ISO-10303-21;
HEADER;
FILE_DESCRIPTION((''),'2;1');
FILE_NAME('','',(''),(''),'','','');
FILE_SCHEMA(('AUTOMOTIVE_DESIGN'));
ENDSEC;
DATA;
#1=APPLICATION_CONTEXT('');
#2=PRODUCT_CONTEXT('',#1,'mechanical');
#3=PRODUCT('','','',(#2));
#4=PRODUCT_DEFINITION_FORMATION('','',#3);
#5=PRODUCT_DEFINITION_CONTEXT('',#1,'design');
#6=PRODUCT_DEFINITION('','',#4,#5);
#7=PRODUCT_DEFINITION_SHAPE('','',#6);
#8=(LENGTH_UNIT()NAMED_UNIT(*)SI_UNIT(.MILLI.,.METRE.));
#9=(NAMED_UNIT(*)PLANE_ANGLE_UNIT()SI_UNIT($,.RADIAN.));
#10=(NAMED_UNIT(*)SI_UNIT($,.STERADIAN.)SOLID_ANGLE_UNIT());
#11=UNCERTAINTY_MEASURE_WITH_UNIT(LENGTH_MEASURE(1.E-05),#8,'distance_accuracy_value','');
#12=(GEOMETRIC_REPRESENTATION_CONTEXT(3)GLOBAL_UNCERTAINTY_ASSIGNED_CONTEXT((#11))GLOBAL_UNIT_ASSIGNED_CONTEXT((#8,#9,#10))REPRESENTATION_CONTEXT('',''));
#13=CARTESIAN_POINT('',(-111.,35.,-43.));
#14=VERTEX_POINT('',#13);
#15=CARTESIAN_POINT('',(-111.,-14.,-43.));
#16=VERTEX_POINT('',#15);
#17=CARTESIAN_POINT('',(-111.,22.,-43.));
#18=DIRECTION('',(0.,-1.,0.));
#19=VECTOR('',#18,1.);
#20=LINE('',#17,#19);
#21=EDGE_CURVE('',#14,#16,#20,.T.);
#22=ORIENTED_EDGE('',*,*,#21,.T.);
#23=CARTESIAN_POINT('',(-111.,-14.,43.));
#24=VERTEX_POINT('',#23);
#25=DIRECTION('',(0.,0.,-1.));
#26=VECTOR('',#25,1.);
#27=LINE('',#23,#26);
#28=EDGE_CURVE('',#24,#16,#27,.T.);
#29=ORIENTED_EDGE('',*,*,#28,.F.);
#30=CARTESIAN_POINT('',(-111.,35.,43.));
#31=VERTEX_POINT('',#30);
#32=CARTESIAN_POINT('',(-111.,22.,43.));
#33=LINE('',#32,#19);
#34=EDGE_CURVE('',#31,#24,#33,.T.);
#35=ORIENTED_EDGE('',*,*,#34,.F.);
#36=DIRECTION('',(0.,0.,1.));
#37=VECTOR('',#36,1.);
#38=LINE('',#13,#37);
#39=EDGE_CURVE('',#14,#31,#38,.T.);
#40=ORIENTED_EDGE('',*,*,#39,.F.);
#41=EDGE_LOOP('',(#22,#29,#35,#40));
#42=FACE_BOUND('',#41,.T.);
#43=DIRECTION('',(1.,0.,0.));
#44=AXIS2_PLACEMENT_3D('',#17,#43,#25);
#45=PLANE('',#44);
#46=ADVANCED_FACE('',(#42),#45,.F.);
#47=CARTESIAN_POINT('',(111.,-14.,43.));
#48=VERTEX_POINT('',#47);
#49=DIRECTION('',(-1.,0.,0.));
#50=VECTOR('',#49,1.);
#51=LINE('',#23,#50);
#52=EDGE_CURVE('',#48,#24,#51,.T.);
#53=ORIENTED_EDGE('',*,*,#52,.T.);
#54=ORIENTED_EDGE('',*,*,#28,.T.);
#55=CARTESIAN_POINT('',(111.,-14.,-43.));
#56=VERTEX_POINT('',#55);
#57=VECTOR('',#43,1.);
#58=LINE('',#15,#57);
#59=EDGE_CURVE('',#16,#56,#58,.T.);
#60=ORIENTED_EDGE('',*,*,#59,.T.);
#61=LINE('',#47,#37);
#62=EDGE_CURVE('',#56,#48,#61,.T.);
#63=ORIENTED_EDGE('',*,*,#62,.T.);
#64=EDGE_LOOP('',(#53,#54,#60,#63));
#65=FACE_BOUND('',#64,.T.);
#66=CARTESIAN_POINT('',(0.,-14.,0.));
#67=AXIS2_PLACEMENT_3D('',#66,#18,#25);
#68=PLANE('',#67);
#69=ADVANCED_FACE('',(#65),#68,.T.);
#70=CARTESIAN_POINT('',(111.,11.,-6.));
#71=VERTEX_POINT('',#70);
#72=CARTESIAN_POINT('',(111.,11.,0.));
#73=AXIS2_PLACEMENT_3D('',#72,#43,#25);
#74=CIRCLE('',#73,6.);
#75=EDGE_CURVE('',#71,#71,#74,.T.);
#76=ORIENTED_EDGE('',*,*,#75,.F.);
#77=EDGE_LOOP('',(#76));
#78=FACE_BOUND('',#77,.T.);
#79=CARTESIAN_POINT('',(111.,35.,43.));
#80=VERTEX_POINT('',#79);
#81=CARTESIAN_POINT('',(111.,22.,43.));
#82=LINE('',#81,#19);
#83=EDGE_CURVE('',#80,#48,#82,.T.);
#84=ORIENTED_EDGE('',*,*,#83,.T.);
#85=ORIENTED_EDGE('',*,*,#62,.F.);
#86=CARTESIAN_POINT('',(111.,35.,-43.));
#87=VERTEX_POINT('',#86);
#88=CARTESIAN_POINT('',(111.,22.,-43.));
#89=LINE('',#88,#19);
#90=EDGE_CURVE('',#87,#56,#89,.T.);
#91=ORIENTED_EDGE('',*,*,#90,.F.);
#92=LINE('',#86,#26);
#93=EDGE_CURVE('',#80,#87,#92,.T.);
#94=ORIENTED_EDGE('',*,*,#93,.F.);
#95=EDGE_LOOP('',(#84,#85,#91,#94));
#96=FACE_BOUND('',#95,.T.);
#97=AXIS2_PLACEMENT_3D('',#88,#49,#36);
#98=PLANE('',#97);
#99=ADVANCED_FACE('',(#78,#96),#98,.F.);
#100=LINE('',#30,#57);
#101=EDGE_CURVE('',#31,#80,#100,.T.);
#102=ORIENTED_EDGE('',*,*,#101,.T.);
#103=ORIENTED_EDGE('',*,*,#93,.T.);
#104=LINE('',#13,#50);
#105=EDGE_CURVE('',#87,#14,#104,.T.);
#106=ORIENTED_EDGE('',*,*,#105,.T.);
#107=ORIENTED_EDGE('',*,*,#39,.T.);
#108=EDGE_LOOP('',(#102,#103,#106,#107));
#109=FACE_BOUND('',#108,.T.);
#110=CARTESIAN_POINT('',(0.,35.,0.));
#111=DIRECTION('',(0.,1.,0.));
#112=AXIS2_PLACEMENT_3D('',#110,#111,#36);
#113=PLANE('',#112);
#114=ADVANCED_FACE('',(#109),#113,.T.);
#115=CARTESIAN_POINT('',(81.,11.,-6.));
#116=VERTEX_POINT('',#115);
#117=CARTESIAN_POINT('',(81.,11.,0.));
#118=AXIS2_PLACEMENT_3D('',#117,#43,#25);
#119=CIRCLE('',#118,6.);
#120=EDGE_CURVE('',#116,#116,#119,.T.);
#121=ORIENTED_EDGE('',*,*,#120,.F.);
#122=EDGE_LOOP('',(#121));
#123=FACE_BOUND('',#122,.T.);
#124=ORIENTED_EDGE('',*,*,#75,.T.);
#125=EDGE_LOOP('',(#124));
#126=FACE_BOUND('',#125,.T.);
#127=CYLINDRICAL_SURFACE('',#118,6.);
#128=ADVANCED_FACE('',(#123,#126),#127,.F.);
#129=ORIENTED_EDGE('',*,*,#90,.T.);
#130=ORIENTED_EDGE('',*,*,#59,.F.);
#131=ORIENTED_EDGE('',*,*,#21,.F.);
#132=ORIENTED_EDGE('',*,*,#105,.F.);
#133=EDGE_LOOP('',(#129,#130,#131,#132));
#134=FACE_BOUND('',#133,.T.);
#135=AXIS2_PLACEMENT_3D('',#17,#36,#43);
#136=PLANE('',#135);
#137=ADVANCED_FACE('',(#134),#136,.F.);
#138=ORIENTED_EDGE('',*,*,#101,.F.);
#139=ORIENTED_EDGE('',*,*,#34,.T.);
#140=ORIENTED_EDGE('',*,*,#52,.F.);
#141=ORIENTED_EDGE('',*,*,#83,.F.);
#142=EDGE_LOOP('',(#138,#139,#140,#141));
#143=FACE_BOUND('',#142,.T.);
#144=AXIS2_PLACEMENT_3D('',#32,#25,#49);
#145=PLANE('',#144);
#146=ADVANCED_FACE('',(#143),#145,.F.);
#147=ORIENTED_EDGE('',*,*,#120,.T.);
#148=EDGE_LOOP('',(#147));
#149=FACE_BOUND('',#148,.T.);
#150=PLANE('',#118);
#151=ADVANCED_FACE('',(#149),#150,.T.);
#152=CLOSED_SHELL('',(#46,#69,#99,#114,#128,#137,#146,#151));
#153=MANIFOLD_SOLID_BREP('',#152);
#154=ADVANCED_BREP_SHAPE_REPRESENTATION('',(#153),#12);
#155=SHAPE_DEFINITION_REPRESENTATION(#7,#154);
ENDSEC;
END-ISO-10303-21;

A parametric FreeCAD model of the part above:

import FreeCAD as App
import Part
import Sketcher


def add_polygon(sketch, points):
    """Adds a closed chain of lines whose ends are joined by coincident constraints."""
    first, n = sketch.GeometryCount, len(points)
    for a, b in zip(points, points[1:] + points[:1]):
        sketch.addGeometry(Part.LineSegment(App.Vector(*a, 0), App.Vector(*b, 0)), False)
    for i in range(n):
        sketch.addConstraint(Sketcher.Constraint("Coincident", first + i, 2, first + (i + 1) % n, 1))

doc = App.newDocument("Part")
body = doc.addObject("PartDesign::Body", "Body")

# Sketch on XZ plane
sketch1 = doc.addObject("Sketcher::SketchObject", "Sketch")
body.addObject(sketch1)
sketch1.AttachmentSupport = (doc.XZ_Plane, [""])
sketch1.MapMode = "FlatFace"
add_polygon(sketch1, [(-111, -43), (-111, 43), (111, 43), (111, -43)])  # lines 0-3
sketch1.addConstraint(Sketcher.Constraint("Vertical", 0))
sketch1.addConstraint(Sketcher.Constraint("Horizontal", 1))
sketch1.addConstraint(Sketcher.Constraint("Vertical", 2))
sketch1.addConstraint(Sketcher.Constraint("Horizontal", 3))
sketch1.addConstraint(Sketcher.Constraint("Symmetric", 0, 2, 2, 2, -1, 1))
sketch1.addConstraint(Sketcher.Constraint("DistanceX", 1, 1, 1, 2, 222.0))
sketch1.addConstraint(Sketcher.Constraint("DistanceY", 0, 1, 0, 2, 86.0))
pad1 = doc.addObject("PartDesign::Pad", "Pad")
body.addObject(pad1)
pad1.Profile = sketch1
pad1.Length = 22
pad1.Reversed = True

# Sketch on YZ plane
sketch2 = doc.addObject("Sketcher::SketchObject", "Sketch001")
body.addObject(sketch2)
sketch2.AttachmentSupport = (doc.YZ_Plane, [""])
sketch2.MapMode = "FlatFace"
sketch2.AttachmentOffset = App.Placement(App.Vector(0, 0, 111), App.Rotation())
sketch2.addGeometry(Part.Circle(App.Vector(11, 0, 0), App.Vector(0, 0, 1), 6), False)
sketch2.addConstraint(Sketcher.Constraint("PointOnObject", 0, 3, -1))
sketch2.addConstraint(Sketcher.Constraint("Diameter", 0, 12.0))
sketch2.addConstraint(Sketcher.Constraint("DistanceX", -1, 1, 0, 3, 11.0))
pocket1 = doc.addObject("PartDesign::Pocket", "Pocket")
body.addObject(pocket1)
pocket1.Profile = sketch2
pocket1.Length = 30

# Sketch on XZ plane
sketch3 = doc.addObject("Sketcher::SketchObject", "Sketch002")
body.addObject(sketch3)
sketch3.AttachmentSupport = (doc.XZ_Plane, [""])
sketch3.MapMode = "FlatFace"
add_polygon(sketch3, [(-111, 43), (-111, -43), (111, -43), (111, 43)])  # lines 0-3
sketch3.addConstraint(Sketcher.Constraint("Vertical", 0))
sketch3.addConstraint(Sketcher.Constraint("Horizontal", 1))
sketch3.addConstraint(Sketcher.Constraint("Vertical", 2))
sketch3.addConstraint(Sketcher.Constraint("Horizontal", 3))
sketch3.addConstraint(Sketcher.Constraint("Symmetric", 0, 2, 2, 2, -1, 1))
sketch3.addConstraint(Sketcher.Constraint("DistanceX", 1, 1, 1, 2, 222.0))
sketch3.addConstraint(Sketcher.Constraint("DistanceY", 0, 2, 0, 1, 86.0))
pad2 = doc.addObject("PartDesign::Pad", "Pad001")
body.addObject(pad2)
pad2.Profile = sketch3
pad2.Length = 14

# Sketch on XZ plane
sketch4 = doc.addObject("Sketcher::SketchObject", "Sketch003")
body.addObject(sketch4)
sketch4.AttachmentSupport = (doc.XZ_Plane, [""])
sketch4.MapMode = "FlatFace"
sketch4.AttachmentOffset = App.Placement(App.Vector(0, 0, -22), App.Rotation())
add_polygon(sketch4, [(-111, -43), (-111, 43), (111, 43), (111, -43)])  # lines 0-3
sketch4.addConstraint(Sketcher.Constraint("Vertical", 0))
sketch4.addConstraint(Sketcher.Constraint("Horizontal", 1))
sketch4.addConstraint(Sketcher.Constraint("Vertical", 2))
sketch4.addConstraint(Sketcher.Constraint("Horizontal", 3))
sketch4.addConstraint(Sketcher.Constraint("Symmetric", 0, 2, 2, 2, -1, 1))
sketch4.addConstraint(Sketcher.Constraint("DistanceX", 1, 1, 1, 2, 222.0))
sketch4.addConstraint(Sketcher.Constraint("DistanceY", 0, 1, 0, 2, 86.0))
pad3 = doc.addObject("PartDesign::Pad", "Pad002")
body.addObject(pad3)
pad3.Profile = sketch4
pad3.Length = 13
pad3.Reversed = True

doc.recompute()
